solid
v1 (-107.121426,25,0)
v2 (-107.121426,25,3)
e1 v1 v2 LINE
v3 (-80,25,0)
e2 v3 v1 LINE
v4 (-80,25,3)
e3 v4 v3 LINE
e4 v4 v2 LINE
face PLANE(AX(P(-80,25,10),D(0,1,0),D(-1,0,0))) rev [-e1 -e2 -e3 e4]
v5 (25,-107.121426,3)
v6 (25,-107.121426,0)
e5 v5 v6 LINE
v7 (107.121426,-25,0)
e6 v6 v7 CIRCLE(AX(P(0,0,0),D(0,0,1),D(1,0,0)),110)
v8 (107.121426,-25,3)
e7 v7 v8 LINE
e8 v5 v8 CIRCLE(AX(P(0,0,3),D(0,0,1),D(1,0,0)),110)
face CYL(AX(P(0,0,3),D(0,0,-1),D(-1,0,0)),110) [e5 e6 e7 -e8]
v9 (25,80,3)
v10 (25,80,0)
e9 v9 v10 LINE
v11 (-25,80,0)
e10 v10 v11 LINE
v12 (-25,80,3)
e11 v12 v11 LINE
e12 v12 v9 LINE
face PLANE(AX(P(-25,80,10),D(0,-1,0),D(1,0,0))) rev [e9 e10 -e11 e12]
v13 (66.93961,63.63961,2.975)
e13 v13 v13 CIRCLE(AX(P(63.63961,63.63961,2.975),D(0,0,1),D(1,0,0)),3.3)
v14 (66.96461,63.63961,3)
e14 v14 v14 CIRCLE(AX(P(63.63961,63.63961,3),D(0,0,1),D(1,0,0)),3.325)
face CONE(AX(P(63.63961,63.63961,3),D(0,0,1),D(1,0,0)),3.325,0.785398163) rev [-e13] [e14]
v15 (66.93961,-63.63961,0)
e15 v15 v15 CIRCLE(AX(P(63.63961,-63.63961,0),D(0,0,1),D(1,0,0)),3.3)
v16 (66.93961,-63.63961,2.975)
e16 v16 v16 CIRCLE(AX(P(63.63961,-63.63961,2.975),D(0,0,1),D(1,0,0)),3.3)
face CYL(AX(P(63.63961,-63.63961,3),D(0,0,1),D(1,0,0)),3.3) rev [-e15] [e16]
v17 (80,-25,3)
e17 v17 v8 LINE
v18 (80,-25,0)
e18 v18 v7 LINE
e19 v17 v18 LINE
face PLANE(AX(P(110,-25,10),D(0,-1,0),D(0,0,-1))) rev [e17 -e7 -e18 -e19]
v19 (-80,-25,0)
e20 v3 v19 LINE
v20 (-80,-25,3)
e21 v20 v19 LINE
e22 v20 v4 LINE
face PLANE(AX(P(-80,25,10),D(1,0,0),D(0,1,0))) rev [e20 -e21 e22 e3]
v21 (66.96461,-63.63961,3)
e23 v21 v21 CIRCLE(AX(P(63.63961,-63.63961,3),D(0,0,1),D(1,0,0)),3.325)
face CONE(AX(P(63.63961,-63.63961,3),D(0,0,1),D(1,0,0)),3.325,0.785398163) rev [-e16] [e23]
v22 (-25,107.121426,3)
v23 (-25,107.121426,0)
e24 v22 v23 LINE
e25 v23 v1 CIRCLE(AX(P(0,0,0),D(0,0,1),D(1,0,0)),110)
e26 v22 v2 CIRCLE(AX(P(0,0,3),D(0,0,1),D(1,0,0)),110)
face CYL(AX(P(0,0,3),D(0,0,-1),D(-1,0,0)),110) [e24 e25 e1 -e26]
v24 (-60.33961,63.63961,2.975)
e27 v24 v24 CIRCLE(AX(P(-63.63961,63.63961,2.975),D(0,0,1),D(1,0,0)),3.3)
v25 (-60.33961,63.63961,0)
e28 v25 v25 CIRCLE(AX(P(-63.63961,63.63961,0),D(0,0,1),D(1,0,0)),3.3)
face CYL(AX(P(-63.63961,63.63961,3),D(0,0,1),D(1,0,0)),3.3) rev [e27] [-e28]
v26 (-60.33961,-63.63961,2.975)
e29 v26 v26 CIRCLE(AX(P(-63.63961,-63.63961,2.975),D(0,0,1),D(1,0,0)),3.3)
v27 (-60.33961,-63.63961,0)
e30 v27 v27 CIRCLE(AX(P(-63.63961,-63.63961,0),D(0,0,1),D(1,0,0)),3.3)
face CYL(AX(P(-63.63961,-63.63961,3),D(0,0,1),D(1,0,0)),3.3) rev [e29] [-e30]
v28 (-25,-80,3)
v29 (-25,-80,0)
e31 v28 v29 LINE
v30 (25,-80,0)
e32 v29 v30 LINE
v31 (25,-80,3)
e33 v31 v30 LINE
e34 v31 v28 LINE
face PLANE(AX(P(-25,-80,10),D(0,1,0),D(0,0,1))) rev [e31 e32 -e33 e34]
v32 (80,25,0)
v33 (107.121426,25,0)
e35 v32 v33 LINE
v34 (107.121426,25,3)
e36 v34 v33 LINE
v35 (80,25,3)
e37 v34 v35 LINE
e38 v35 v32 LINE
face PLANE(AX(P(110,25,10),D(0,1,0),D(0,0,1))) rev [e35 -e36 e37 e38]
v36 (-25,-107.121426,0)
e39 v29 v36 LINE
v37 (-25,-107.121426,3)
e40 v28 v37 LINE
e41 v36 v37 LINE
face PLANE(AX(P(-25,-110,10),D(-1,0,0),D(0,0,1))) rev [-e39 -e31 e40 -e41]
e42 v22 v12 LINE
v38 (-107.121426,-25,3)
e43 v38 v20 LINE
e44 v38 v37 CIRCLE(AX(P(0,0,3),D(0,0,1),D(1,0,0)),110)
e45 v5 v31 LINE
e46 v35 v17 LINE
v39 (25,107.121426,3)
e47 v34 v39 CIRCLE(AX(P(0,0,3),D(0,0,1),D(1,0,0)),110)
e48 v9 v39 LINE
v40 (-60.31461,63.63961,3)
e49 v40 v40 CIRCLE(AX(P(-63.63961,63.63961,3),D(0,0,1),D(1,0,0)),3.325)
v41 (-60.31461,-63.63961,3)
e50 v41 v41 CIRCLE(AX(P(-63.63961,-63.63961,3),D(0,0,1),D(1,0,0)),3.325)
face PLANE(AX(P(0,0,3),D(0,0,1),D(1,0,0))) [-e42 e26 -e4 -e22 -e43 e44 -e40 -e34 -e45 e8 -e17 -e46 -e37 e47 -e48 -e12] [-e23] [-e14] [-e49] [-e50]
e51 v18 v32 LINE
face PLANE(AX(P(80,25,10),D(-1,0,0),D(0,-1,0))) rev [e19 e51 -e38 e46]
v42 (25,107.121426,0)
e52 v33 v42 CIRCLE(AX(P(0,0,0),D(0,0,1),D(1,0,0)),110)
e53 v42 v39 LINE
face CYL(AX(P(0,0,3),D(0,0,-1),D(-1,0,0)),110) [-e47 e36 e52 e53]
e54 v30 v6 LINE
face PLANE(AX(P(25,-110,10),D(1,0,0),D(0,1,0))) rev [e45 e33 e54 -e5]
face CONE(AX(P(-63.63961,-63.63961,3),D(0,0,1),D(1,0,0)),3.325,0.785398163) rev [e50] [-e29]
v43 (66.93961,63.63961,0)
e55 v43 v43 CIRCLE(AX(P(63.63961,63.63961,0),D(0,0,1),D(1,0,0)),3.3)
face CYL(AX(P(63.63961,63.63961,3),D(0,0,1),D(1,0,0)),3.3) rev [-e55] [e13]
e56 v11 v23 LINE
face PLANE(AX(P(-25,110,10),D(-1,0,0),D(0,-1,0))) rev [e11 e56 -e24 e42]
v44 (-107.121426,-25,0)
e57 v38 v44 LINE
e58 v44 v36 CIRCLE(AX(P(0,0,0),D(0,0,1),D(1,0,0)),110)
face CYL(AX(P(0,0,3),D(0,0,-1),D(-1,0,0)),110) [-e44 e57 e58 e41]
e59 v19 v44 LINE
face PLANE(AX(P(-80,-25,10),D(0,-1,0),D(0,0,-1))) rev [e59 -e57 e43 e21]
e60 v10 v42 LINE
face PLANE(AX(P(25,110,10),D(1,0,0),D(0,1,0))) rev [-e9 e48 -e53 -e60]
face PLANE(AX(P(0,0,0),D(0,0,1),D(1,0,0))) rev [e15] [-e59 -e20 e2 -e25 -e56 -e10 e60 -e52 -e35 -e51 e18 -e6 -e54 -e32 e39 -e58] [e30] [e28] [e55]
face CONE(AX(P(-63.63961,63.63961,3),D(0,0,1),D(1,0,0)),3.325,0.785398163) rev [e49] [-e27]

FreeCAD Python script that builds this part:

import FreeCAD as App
import Part
import Sketcher
Q = App.Units.Quantity

doc = App.newDocument("Part")
body = doc.addObject("PartDesign::Body", "Body")

sketch1 = doc.addObject("Sketcher::SketchObject", "Sketch")
body.addObject(sketch1)
sketch1.AttachmentSupport = (doc.XY_Plane, [""])
sketch1.MapMode = "FlatFace"
sketch1.addGeometry(Part.Circle(App.Vector(0, 0, 0), App.Vector(0, 0, 1), 110), False)
sketch1.addConstraint(Sketcher.Constraint("Coincident", 0, 3, -1, 1))
sketch1.addConstraint(Sketcher.Constraint("Diameter", 0, 220.0))
pad1 = doc.addObject("PartDesign::Pad", "Pad")
body.addObject(pad1)
pad1.Profile = sketch1
pad1.Length = 3

sketch2 = doc.addObject("Sketcher::SketchObject", "Sketch001")
body.addObject(sketch2)
sketch2.AttachmentSupport = (doc.YZ_Plane, [""])
sketch2.MapMode = "FlatFace"
sketch2.AttachmentOffset = App.Placement(App.Vector(0, 0, -63.63961), App.Rotation())
sketch2.addGeometry(Part.LineSegment(App.Vector(63.63961, 0, 0), App.Vector(63.63961, 3, 0)), False)
sketch2.addGeometry(Part.LineSegment(App.Vector(63.63961, 3, 0), App.Vector(60.31461, 3, 0)), False)
sketch2.addGeometry(Part.LineSegment(App.Vector(60.31461, 3, 0), App.Vector(60.33961, 2.975, 0)), False)
sketch2.addGeometry(Part.LineSegment(App.Vector(60.33961, 2.975, 0), App.Vector(60.33961, 0, 0)), False)
sketch2.addGeometry(Part.LineSegment(App.Vector(60.33961, 0, 0), App.Vector(63.63961, 0, 0)), False)
sketch2.addGeometry(Part.LineSegment(App.Vector(63.63961, 3, 0), App.Vector(63.63961, 0, 0)), True)
sketch2.addConstraint(Sketcher.Constraint("Coincident", 0, 2, 1, 1))
sketch2.addConstraint(Sketcher.Constraint("Coincident", 1, 2, 2, 1))
sketch2.addConstraint(Sketcher.Constraint("Coincident", 2, 2, 3, 1))
sketch2.addConstraint(Sketcher.Constraint("Coincident", 3, 2, 4, 1))
sketch2.addConstraint(Sketcher.Constraint("Coincident", 4, 2, 0, 1))
sketch2.addConstraint(Sketcher.Constraint("Vertical", 0))
sketch2.addConstraint(Sketcher.Constraint("Horizontal", 1))
sketch2.addConstraint(Sketcher.Constraint("Vertical", 3))
sketch2.addConstraint(Sketcher.Constraint("Horizontal", 4))
sketch2.addConstraint(Sketcher.Constraint("Vertical", 5))
sketch2.addConstraint(Sketcher.Constraint("Coincident", 5, 1, 0, 2))
sketch2.addConstraint(Sketcher.Constraint("PointOnObject", 3, 2, -1))
sketch2.addConstraint(Sketcher.Constraint("PointOnObject", 5, 2, -1))
sketch2.addConstraint(Sketcher.Constraint("DistanceY", 0, 1, 0, 2, 3.0))
sketch2.addConstraint(Sketcher.Constraint("Angle", 2, Q("-45 deg")))
sketch2.addConstraint(Sketcher.Constraint("DistanceX", 4, 1, 4, 2, 3.3))
sketch2.addConstraint(Sketcher.Constraint("DistanceX", 1, 2, 1, 1, 3.325))
sketch2.addConstraint(Sketcher.Constraint("DistanceX", -1, 1, 0, 2, 63.63961))
groove = doc.addObject("PartDesign::Groove", "Groove")
body.addObject(groove)
groove.Profile = sketch2
groove.ReferenceAxis = (sketch2, ["Axis0"])
groove.Angle = 360
doc.recompute()

linearpattern = doc.addObject("PartDesign::LinearPattern", "LinearPattern")
body.addObject(linearpattern)
linearpattern.Originals = [groove]
linearpattern.Direction = (doc.X_Axis, [""])
linearpattern.Mode = "offset"
linearpattern.Offset = 127.279221
linearpattern.Occurrences = 2
body.Tip = linearpattern
doc.recompute()

linearpattern2 = doc.addObject("PartDesign::LinearPattern", "LinearPattern001")
body.addObject(linearpattern2)
linearpattern2.Originals = [groove]
linearpattern2.Direction = (doc.Y_Axis, [""])
linearpattern2.Mode = "offset"
linearpattern2.Offset = 127.279221
linearpattern2.Occurrences = 2
linearpattern2.Reversed = True
body.Tip = linearpattern2
doc.recompute()

datumline = doc.addObject("PartDesign::Line", "DatumLine")
body.addObject(datumline)
datumline.Placement = App.Placement(App.Vector(0, 0, 0), App.Rotation(App.Vector(0, 0, 1), App.Vector(0.707106781, -0.707106781, 0)))
linearpattern3 = doc.addObject("PartDesign::LinearPattern", "LinearPattern002")
body.addObject(linearpattern3)
linearpattern3.Originals = [groove]
linearpattern3.Direction = (datumline, [""])
linearpattern3.Mode = "offset"
linearpattern3.Offset = 180
linearpattern3.Occurrences = 2
body.Tip = linearpattern3

sketch3 = doc.addObject("Sketcher::SketchObject", "Sketch002")
body.addObject(sketch3)
sketch3.AttachmentSupport = (doc.XY_Plane, [""])
sketch3.MapMode = "FlatFace"
sketch3.addGeometry(Part.LineSegment(App.Vector(-80, 25, 0), App.Vector(-80, -25, 0)), False)
sketch3.addGeometry(Part.LineSegment(App.Vector(-80, -25, 0), App.Vector(-110, -25, 0)), False)
sketch3.addGeometry(Part.LineSegment(App.Vector(-110, -25, 0), App.Vector(-110, 25, 0)), False)
sketch3.addGeometry(Part.LineSegment(App.Vector(-110, 25, 0), App.Vector(-80, 25, 0)), False)
sketch3.addGeometry(Part.LineSegment(App.Vector(110, 25, 0), App.Vector(110, -25, 0)), False)
sketch3.addGeometry(Part.LineSegment(App.Vector(110, -25, 0), App.Vector(80, -25, 0)), False)
sketch3.addGeometry(Part.LineSegment(App.Vector(80, -25, 0), App.Vector(80, 25, 0)), False)
sketch3.addGeometry(Part.LineSegment(App.Vector(80, 25, 0), App.Vector(110, 25, 0)), False)
sketch3.addGeometry(Part.LineSegment(App.Vector(25, -80, 0), App.Vector(25, -110, 0)), False)
sketch3.addGeometry(Part.LineSegment(App.Vector(25, -110, 0), App.Vector(-25, -110, 0)), False)
sketch3.addGeometry(Part.LineSegment(App.Vector(-25, -110, 0), App.Vector(-25, -80, 0)), False)
sketch3.addGeometry(Part.LineSegment(App.Vector(-25, -80, 0), App.Vector(25, -80, 0)), False)
sketch3.addGeometry(Part.LineSegment(App.Vector(25, 110, 0), App.Vector(25, 80, 0)), False)
sketch3.addGeometry(Part.LineSegment(App.Vector(25, 80, 0), App.Vector(-25, 80, 0)), False)
sketch3.addGeometry(Part.LineSegment(App.Vector(-25, 80, 0), App.Vector(-25, 110, 0)), False)
sketch3.addGeometry(Part.LineSegment(App.Vector(-25, 110, 0), App.Vector(25, 110, 0)), False)
sketch3.addConstraint(Sketcher.Constraint("Coincident", 0, 2, 1, 1))
sketch3.addConstraint(Sketcher.Constraint("Coincident", 1, 2, 2, 1))
sketch3.addConstraint(Sketcher.Constraint("Coincident", 2, 2, 3, 1))
sketch3.addConstraint(Sketcher.Constraint("Coincident", 3, 2, 0, 1))
sketch3.addConstraint(Sketcher.Constraint("Coincident", 4, 2, 5, 1))
sketch3.addConstraint(Sketcher.Constraint("Coincident", 5, 2, 6, 1))
sketch3.addConstraint(Sketcher.Constraint("Coincident", 6, 2, 7, 1))
sketch3.addConstraint(Sketcher.Constraint("Coincident", 7, 2, 4, 1))
sketch3.addConstraint(Sketcher.Constraint("Coincident", 8, 2, 9, 1))
sketch3.addConstraint(Sketcher.Constraint("Coincident", 9, 2, 10, 1))
sketch3.addConstraint(Sketcher.Constraint("Coincident", 10, 2, 11, 1))
sketch3.addConstraint(Sketcher.Constraint("Coincident", 11, 2, 8, 1))
sketch3.addConstraint(Sketcher.Constraint("Coincident", 12, 2, 13, 1))
sketch3.addConstraint(Sketcher.Constraint("Coincident", 13, 2, 14, 1))
sketch3.addConstraint(Sketcher.Constraint("Coincident", 14, 2, 15, 1))
sketch3.addConstraint(Sketcher.Constraint("Coincident", 15, 2, 12, 1))
sketch3.addConstraint(Sketcher.Constraint("Vertical", 0))
sketch3.addConstraint(Sketcher.Constraint("Horizontal", 1))
sketch3.addConstraint(Sketcher.Constraint("Vertical", 2))
sketch3.addConstraint(Sketcher.Constraint("Horizontal", 3))
sketch3.addConstraint(Sketcher.Constraint("Vertical", 4))
sketch3.addConstraint(Sketcher.Constraint("Horizontal", 5))
sketch3.addConstraint(Sketcher.Constraint("Vertical", 6))
sketch3.addConstraint(Sketcher.Constraint("Horizontal", 7))
sketch3.addConstraint(Sketcher.Constraint("Vertical", 8))
sketch3.addConstraint(Sketcher.Constraint("Horizontal", 9))
sketch3.addConstraint(Sketcher.Constraint("Vertical", 10))
sketch3.addConstraint(Sketcher.Constraint("Horizontal", 11))
sketch3.addConstraint(Sketcher.Constraint("Vertical", 12))
sketch3.addConstraint(Sketcher.Constraint("Horizontal", 13))
sketch3.addConstraint(Sketcher.Constraint("Vertical", 14))
sketch3.addConstraint(Sketcher.Constraint("Horizontal", 15))
sketch3.addConstraint(Sketcher.Constraint("Symmetric", 2, 2, 4, 2, -1, 1))
sketch3.addConstraint(Sketcher.Constraint("Symmetric", 0, 2, 6, 2, -1, 1))
sketch3.addConstraint(Sketcher.Constraint("Symmetric", 10, 2, 12, 2, -1, 1))
sketch3.addConstraint(Sketcher.Constraint("Symmetric", 8, 2, 14, 2, -1, 1))
sketch3.addConstraint(Sketcher.Constraint("Horizontal", 1, 2, 4, 2))
sketch3.addConstraint(Sketcher.Constraint("Vertical", 11, 2, 12, 2))
sketch3.addConstraint(Sketcher.Constraint("Equal", 15, 0))
sketch3.addConstraint(Sketcher.Constraint("Equal", 7, 8))
sketch3.addConstraint(Sketcher.Constraint("DistanceX", 1, 2, 1, 1, 30.0))
sketch3.addConstraint(Sketcher.Constraint("DistanceX", 9, 2, 9, 1, 50.0))
sketch3.addConstraint(Sketcher.Constraint("DistanceX", 0, 2, -1, 1, 80.0))
sketch3.addConstraint(Sketcher.Constraint("DistanceY", 8, 2, -1, 1, 110.0))
pocket1 = doc.addObject("PartDesign::Pocket", "Pocket")
body.addObject(pocket1)
pocket1.Profile = sketch3
pocket1.Length = 10
pocket1.Reversed = True

doc.recompute()
